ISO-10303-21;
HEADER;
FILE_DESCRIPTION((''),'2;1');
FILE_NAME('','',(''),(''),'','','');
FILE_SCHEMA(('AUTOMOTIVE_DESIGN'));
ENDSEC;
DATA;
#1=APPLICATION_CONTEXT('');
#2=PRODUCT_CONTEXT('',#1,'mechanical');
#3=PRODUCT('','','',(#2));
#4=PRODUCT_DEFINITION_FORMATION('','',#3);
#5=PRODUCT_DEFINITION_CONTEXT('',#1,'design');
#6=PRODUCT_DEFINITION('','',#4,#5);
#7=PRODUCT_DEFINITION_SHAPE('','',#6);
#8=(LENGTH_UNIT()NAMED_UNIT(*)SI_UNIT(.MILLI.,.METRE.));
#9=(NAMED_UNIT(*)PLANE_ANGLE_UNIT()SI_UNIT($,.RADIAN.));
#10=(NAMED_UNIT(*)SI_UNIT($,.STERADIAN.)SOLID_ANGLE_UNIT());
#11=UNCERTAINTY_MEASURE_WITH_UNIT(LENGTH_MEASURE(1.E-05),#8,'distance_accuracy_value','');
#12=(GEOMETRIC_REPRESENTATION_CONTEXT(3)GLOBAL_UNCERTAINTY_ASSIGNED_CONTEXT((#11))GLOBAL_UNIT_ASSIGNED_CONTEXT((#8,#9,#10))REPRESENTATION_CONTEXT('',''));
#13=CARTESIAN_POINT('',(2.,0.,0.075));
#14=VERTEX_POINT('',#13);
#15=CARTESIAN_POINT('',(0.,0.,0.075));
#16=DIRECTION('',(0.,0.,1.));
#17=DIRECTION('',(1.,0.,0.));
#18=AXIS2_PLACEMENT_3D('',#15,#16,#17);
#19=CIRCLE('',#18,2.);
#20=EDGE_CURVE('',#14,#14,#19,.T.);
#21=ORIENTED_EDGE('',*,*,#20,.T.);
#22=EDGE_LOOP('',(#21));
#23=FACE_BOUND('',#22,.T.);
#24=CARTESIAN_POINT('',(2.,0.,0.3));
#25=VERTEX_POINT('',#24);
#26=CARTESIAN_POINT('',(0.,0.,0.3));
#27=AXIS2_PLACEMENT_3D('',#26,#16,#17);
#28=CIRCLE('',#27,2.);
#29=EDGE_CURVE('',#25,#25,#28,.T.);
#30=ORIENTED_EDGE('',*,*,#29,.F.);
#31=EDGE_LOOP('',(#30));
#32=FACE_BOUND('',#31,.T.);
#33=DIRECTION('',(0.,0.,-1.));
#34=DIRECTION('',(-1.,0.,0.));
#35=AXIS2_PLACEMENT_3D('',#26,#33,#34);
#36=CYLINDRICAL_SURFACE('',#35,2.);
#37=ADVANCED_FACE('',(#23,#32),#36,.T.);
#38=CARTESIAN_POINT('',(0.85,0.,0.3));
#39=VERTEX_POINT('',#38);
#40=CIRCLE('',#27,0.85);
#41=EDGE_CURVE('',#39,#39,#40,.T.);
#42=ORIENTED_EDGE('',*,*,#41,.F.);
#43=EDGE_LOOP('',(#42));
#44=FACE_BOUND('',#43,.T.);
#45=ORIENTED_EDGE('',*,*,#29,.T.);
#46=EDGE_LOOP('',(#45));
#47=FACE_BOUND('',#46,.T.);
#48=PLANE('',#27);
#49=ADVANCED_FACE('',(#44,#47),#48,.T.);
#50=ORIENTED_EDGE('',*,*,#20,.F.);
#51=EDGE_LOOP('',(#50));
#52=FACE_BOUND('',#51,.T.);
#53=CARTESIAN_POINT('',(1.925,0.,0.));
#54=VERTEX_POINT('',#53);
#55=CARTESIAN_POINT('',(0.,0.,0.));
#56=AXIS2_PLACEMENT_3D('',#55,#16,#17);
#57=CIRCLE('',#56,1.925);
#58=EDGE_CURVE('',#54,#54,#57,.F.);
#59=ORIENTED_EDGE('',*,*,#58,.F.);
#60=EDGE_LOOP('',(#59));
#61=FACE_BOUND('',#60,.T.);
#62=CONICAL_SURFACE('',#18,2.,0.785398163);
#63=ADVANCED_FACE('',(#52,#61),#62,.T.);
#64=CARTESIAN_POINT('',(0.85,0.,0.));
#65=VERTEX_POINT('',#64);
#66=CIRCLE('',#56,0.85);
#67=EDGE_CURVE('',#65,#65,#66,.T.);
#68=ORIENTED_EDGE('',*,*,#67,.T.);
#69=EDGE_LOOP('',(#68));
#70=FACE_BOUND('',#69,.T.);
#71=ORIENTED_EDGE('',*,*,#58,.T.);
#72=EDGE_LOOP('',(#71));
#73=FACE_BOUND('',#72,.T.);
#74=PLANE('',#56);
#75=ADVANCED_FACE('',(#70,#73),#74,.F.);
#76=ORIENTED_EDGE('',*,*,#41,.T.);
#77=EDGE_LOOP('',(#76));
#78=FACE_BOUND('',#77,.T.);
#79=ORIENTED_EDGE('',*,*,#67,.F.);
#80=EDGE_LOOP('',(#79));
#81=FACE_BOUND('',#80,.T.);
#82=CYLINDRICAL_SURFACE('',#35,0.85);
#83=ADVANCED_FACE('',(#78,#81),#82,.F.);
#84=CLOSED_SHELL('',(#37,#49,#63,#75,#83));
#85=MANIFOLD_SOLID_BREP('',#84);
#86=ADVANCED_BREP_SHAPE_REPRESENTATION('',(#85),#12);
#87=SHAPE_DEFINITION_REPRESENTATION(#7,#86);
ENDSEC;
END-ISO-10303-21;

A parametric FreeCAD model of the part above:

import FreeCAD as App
import Part
import Sketcher

V = App.Vector


def edges_at(feature, points):
    """Names of the edges that pass closest to the given points."""
    edges = feature.Shape.Edges
    near = lambda p: min(range(len(edges)), key=lambda i: edges[i].distToShape(Part.Vertex(*p))[0])
    return sorted({f"Edge{near(p) + 1}" for p in points})

doc = App.newDocument("Part")
params = doc.addObject("Spreadsheet::Sheet", "Params")
for row, (alias, value) in enumerate([
    ("sketch1_diameter", "4 mm"),
    ("sketch1_diameter2", "1.7 mm"),
    ("pad1_length", "0.3 mm"),
    ("chamfer_size", "0.075 mm"),
], start=1):
    params.set(f"A{row}", alias)
    params.set(f"B{row}", "=" + value)
    params.setAlias(f"B{row}", alias)

body = doc.addObject("PartDesign::Body", "Body")

# Sketch on XY plane
sketch1 = body.newObject("Sketcher::SketchObject", "Sketch")
sketch1.AttachmentSupport = (doc.getObject("XY_Plane"), [""])
sketch1.MapMode = "FlatFace"
sketch1.addGeometry([
    Part.Circle(V(0, 0, 0), V(0, 0, 1), 2),
    Part.Circle(V(0, 0, 0), V(0, 0, 1), 0.8),
], False)
sketch1.addConstraint([
    Sketcher.Constraint("Coincident", 0, 3, -1, 1),
    Sketcher.Constraint("Coincident", 1, 3, -1, 1),
    Sketcher.Constraint("Diameter", 0, 4.0),
    Sketcher.Constraint("Diameter", 1, 1.7),
])
sketch1.setExpression("Constraints[2]", "Params.sketch1_diameter")
sketch1.setExpression("Constraints[3]", "Params.sketch1_diameter2")
pad1 = body.newObject("PartDesign::Pad", "Pad")
pad1.Profile = sketch1
pad1.setExpression("Length", "Params.pad1_length")
doc.recompute()

chamfer = body.newObject("PartDesign::Chamfer", "Chamfer")
chamfer.Base = (pad1, edges_at(pad1, [(-2, 0, 0)]))
chamfer.setExpression("Size", "Params.chamfer_size")

doc.recompute()
